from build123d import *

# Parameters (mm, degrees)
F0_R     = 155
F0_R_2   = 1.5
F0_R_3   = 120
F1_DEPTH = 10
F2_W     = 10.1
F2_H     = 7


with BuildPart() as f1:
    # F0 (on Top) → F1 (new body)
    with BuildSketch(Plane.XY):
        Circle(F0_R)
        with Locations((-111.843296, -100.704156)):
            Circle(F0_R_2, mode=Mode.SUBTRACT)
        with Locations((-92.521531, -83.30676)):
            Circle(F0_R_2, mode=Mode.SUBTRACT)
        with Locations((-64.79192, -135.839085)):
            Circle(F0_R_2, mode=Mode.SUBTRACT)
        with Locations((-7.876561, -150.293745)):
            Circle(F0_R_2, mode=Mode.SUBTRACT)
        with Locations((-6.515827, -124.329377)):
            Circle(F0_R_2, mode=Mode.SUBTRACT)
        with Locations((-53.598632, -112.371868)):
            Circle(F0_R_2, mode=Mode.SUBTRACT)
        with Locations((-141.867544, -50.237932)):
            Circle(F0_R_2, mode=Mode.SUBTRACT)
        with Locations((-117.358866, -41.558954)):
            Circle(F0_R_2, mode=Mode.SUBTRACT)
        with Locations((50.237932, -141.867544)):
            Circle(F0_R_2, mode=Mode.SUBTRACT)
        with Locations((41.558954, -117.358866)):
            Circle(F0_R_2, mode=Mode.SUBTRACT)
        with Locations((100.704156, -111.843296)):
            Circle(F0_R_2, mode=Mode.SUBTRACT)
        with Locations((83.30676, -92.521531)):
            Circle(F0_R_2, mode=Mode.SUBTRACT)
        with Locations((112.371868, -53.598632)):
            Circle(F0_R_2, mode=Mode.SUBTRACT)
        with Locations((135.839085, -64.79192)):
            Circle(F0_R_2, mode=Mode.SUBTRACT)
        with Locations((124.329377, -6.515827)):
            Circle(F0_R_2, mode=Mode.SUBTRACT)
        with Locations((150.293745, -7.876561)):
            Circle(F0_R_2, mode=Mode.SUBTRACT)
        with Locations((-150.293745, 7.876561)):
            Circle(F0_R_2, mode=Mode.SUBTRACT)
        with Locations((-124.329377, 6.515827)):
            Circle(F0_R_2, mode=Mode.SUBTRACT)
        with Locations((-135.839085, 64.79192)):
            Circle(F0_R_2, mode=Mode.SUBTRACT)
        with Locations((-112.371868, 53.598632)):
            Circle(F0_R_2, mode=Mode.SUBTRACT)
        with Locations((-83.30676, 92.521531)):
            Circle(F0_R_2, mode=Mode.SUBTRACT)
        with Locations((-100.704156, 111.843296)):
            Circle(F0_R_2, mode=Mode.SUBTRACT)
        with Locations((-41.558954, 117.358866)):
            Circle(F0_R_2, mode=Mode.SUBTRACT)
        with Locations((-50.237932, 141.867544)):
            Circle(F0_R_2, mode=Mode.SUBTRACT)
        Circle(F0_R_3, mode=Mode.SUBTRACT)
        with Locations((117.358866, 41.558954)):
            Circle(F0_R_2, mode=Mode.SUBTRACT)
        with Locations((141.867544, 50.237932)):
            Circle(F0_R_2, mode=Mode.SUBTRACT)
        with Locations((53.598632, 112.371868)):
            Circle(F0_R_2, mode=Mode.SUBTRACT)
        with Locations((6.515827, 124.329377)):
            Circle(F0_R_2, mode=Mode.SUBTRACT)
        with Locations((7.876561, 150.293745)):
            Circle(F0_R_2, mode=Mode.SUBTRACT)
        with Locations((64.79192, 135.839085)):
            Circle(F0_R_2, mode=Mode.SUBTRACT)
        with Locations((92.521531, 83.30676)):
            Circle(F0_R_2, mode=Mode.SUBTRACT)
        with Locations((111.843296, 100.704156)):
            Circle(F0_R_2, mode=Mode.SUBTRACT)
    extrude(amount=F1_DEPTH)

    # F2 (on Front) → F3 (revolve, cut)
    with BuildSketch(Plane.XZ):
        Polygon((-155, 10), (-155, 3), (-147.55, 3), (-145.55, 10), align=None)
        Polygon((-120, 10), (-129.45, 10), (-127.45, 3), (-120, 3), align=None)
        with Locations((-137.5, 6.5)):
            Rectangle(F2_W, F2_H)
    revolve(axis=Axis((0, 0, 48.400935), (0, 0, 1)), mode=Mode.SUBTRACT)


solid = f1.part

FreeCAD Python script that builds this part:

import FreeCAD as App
import Part
import Sketcher
from FreeCAD import Vector


def add_polygon(sketch, points):
    """Adds a closed chain of lines whose ends are joined by coincident constraints."""
    first, n = sketch.GeometryCount, len(points)
    for a, b in zip(points, points[1:] + points[:1]):
        sketch.addGeometry(Part.LineSegment(App.Vector(*a, 0), App.Vector(*b, 0)), False)
    for i in range(n):
        sketch.addConstraint(Sketcher.Constraint("Coincident", first + i, 2, first + (i + 1) % n, 1))

doc = App.newDocument("Part")
body = doc.addObject("PartDesign::Body", "Body")

# Sketch on XY plane
sketch1 = body.newObject("Sketcher::SketchObject", "Sketch")
sketch1.AttachmentSupport = (doc.getObject("XY_Plane"), [""])
sketch1.MapMode = "FlatFace"
sketch1.addGeometry([
    Part.Circle(Vector(0, 0, 0), Vector(0, 0, 1), 155),  # 0
    Part.Circle(Vector(-111.8, -100.7, 0), Vector(0, 0, 1), 1.5),  # 1
    Part.Circle(Vector(-92.5, -83.3, 0), Vector(0, 0, 1), 1.5),  # 2
    Part.Circle(Vector(-64.8, -135.8, 0), Vector(0, 0, 1), 1.5),  # 3
    Part.Circle(Vector(-7.9, -150.3, 0), Vector(0, 0, 1), 1.5),  # 4
    Part.Circle(Vector(-6.5, -124.3, 0), Vector(0, 0, 1), 1.5),  # 5
    Part.Circle(Vector(-53.6, -112.4, 0), Vector(0, 0, 1), 1.5),  # 6
    Part.Circle(Vector(-141.9, -50.2, 0), Vector(0, 0, 1), 1.5),  # 7
    Part.Circle(Vector(-117.4, -41.6, 0), Vector(0, 0, 1), 1.5),  # 8
    Part.Circle(Vector(50.2, -141.9, 0), Vector(0, 0, 1), 1.5),  # 9
    Part.Circle(Vector(41.6, -117.4, 0), Vector(0, 0, 1), 1.5),  # 10
    Part.Circle(Vector(100.7, -111.8, 0), Vector(0, 0, 1), 1.5),  # 11
    Part.Circle(Vector(83.3, -92.5, 0), Vector(0, 0, 1), 1.5),  # 12
    Part.Circle(Vector(112.4, -53.6, 0), Vector(0, 0, 1), 1.5),  # 13
    Part.Circle(Vector(135.8, -64.8, 0), Vector(0, 0, 1), 1.5),  # 14
    Part.Circle(Vector(124.3, -6.5, 0), Vector(0, 0, 1), 1.5),  # 15
    Part.Circle(Vector(150.3, -7.9, 0), Vector(0, 0, 1), 1.5),  # 16
    Part.Circle(Vector(-150.3, 7.9, 0), Vector(0, 0, 1), 1.5),  # 17
    Part.Circle(Vector(-124.3, 6.5, 0), Vector(0, 0, 1), 1.5),  # 18
    Part.Circle(Vector(-135.8, 64.8, 0), Vector(0, 0, 1), 1.5),  # 19
    Part.Circle(Vector(-112.4, 53.6, 0), Vector(0, 0, 1), 1.5),  # 20
    Part.Circle(Vector(-83.3, 92.5, 0), Vector(0, 0, 1), 1.5),  # 21
    Part.Circle(Vector(-100.7, 111.8, 0), Vector(0, 0, 1), 1.5),  # 22
    Part.Circle(Vector(-41.6, 117.4, 0), Vector(0, 0, 1), 1.5),  # 23
    Part.Circle(Vector(-50.2, 141.9, 0), Vector(0, 0, 1), 1.5),  # 24
    Part.Circle(Vector(0, 0, 0), Vector(0, 0, 1), 120),  # 25
    Part.Circle(Vector(117.4, 41.6, 0), Vector(0, 0, 1), 1.5),  # 26
    Part.Circle(Vector(141.9, 50.2, 0), Vector(0, 0, 1), 1.5),  # 27
    Part.Circle(Vector(53.6, 112.4, 0), Vector(0, 0, 1), 1.5),  # 28
    Part.Circle(Vector(6.5, 124.3, 0), Vector(0, 0, 1), 1.5),  # 29
    Part.Circle(Vector(7.9, 150.3, 0), Vector(0, 0, 1), 1.5),  # 30
    Part.Circle(Vector(64.8, 135.8, 0), Vector(0, 0, 1), 1.5),  # 31
    Part.Circle(Vector(92.5, 83.3, 0), Vector(0, 0, 1), 1.5),  # 32
    Part.Circle(Vector(111.8, 100.7, 0), Vector(0, 0, 1), 1.5),  # 33
], False)
sketch1.addConstraint([
    Sketcher.Constraint("Coincident", 0, 3, -1, 1),
    Sketcher.Constraint("Coincident", 25, 3, -1, 1),
    Sketcher.Constraint("Equal", 1, 2),
    Sketcher.Constraint("Equal", 2, 3),
    Sketcher.Constraint("Equal", 3, 4),
    Sketcher.Constraint("Equal", 4, 5),
    Sketcher.Constraint("Equal", 5, 6),
    Sketcher.Constraint("Equal", 6, 7),
    Sketcher.Constraint("Equal", 7, 8),
    Sketcher.Constraint("Equal", 8, 9),
    Sketcher.Constraint("Equal", 9, 10),
    Sketcher.Constraint("Equal", 10, 11),
    Sketcher.Constraint("Equal", 11, 12),
    Sketcher.Constraint("Equal", 12, 13),
    Sketcher.Constraint("Equal", 13, 14),
    Sketcher.Constraint("Equal", 14, 15),
    Sketcher.Constraint("Equal", 15, 16),
    Sketcher.Constraint("Equal", 16, 17),
    Sketcher.Constraint("Equal", 17, 18),
    Sketcher.Constraint("Equal", 18, 19),
    Sketcher.Constraint("Equal", 19, 20),
    Sketcher.Constraint("Equal", 20, 21),
    Sketcher.Constraint("Equal", 21, 22),
    Sketcher.Constraint("Equal", 22, 23),
    Sketcher.Constraint("Equal", 23, 24),
    Sketcher.Constraint("Equal", 24, 26),
    Sketcher.Constraint("Equal", 26, 27),
    Sketcher.Constraint("Equal", 27, 28),
    Sketcher.Constraint("Equal", 28, 29),
    Sketcher.Constraint("Equal", 29, 30),
    Sketcher.Constraint("Equal", 30, 31),
    Sketcher.Constraint("Equal", 31, 32),
    Sketcher.Constraint("Equal", 32, 33),
    Sketcher.Constraint("Symmetric", 16, 3, 17, 3, -1, 1),
    Sketcher.Constraint("Symmetric", 15, 3, 18, 3, -1, 1),
    Sketcher.Constraint("Symmetric", 14, 3, 19, 3, -1, 1),
    Sketcher.Constraint("Symmetric", 13, 3, 20, 3, -1, 1),
    Sketcher.Constraint("Symmetric", 12, 3, 21, 3, -1, 1),
    Sketcher.Constraint("Symmetric", 11, 3, 22, 3, -1, 1),
    Sketcher.Constraint("Symmetric", 10, 3, 23, 3, -1, 1),
    Sketcher.Constraint("Symmetric", 9, 3, 24, 3, -1, 1),
    Sketcher.Constraint("Symmetric", 8, 3, 26, 3, -1, 1),
    Sketcher.Constraint("Symmetric", 7, 3, 27, 3, -1, 1),
    Sketcher.Constraint("Symmetric", 6, 3, 28, 3, -1, 1),
    Sketcher.Constraint("Symmetric", 5, 3, 29, 3, -1, 1),
    Sketcher.Constraint("Symmetric", 4, 3, 30, 3, -1, 1),
    Sketcher.Constraint("Symmetric", 3, 3, 31, 3, -1, 1),
    Sketcher.Constraint("Symmetric", 2, 3, 32, 3, -1, 1),
    Sketcher.Constraint("Symmetric", 1, 3, 33, 3, -1, 1),
    Sketcher.Constraint("Diameter", 0, 310.0),
    Sketcher.Constraint("Diameter", 1, 3.0),
    Sketcher.Constraint("Diameter", 25, 240.0),
    Sketcher.Constraint("DistanceX", 2, 3, 6, 3, 38.922899),
    Sketcher.Constraint("DistanceY", 1, 3, 8, 3, 59.145202),
    Sketcher.Constraint("DistanceY", 4, 3, 9, 3, 8.426201),
    Sketcher.Constraint("DistanceX", 10, 3, 11, 3, 59.145202),
    Sketcher.Constraint("DistanceY", 12, 3, 13, 3, 38.922899),
    Sketcher.Constraint("DistanceX", 17, 3, 7, 3, 8.426201),
    Sketcher.Constraint("DistanceX", 2, 3, -1, 1, 92.521531),
    Sketcher.Constraint("DistanceY", 2, 3, -1, 1, 83.30676),
    Sketcher.Constraint("DistanceX", 3, 3, -1, 1, 64.79192),
    Sketcher.Constraint("DistanceX", 4, 3, -1, 1, 7.876561),
    Sketcher.Constraint("DistanceY", 6, 3, -1, 1, 112.371868),
    Sketcher.Constraint("DistanceX", -1, 1, 12, 3, 83.30676),
    Sketcher.Constraint("DistanceY", 12, 3, -1, 1, 92.521531),
    Sketcher.Constraint("DistanceX", -1, 1, 13, 3, 112.371868),
    Sketcher.Constraint("DistanceY", 14, 3, -1, 1, 64.79192),
    Sketcher.Constraint("DistanceY", 16, 3, -1, 1, 7.876561),
    Sketcher.Constraint("DistanceY", 3, 3, 1, 3, 35.134929),
    Sketcher.Constraint("DistanceY", 4, 3, 3, 3, 14.45466),
    Sketcher.Constraint("DistanceY", 4, 3, 5, 3, 25.964368),
    Sketcher.Constraint("DistanceX", 1, 3, 5, 3, 105.327469),
    Sketcher.Constraint("DistanceY", 5, 3, 6, 3, 11.957509),
    Sketcher.Constraint("DistanceX", 7, 3, 1, 3, 30.024248),
    Sketcher.Constraint("DistanceX", 7, 3, 6, 3, 88.268912),
    Sketcher.Constraint("DistanceX", 7, 3, 8, 3, 24.508678),
    Sketcher.Constraint("DistanceY", 7, 3, 8, 3, 8.678978),
    Sketcher.Constraint("DistanceX", 5, 3, 9, 3, 56.753759),
    Sketcher.Constraint("DistanceX", 10, 3, 9, 3, 8.678978),
    Sketcher.Constraint("DistanceY", 9, 3, 10, 3, 24.508678),
    Sketcher.Constraint("DistanceY", 9, 3, 11, 3, 30.024248),
    Sketcher.Constraint("DistanceX", 11, 3, 14, 3, 35.134929),
    Sketcher.Constraint("DistanceX", 13, 3, 15, 3, 11.957509),
    Sketcher.Constraint("DistanceY", 11, 3, 15, 3, 105.327469),
])
pad1 = body.newObject("PartDesign::Pad", "Pad")
pad1.Profile = sketch1
pad1.Length = 10

# Sketch on XZ plane
sketch2 = body.newObject("Sketcher::SketchObject", "Sketch001")
sketch2.AttachmentSupport = (doc.getObject("XZ_Plane"), [""])
sketch2.MapMode = "FlatFace"
add_polygon(sketch2, [(-155, 10), (-155, 3), (-148, 3), (-146, 10)])  # lines 0-3
add_polygon(sketch2, [(-120, 10), (-129, 10), (-127, 3), (-120, 3)])  # lines 4-7
add_polygon(sketch2, [(-143, 10), (-143, 3), (-132, 3), (-132, 10)])  # lines 8-11
sketch2.addConstraint([
    Sketcher.Constraint("Vertical", 0),
    Sketcher.Constraint("Horizontal", 1),
    Sketcher.Constraint("Horizontal", 3),
    Sketcher.Constraint("Horizontal", 4),
    Sketcher.Constraint("Horizontal", 6),
    Sketcher.Constraint("Vertical", 7),
    Sketcher.Constraint("Vertical", 8),
    Sketcher.Constraint("Horizontal", 9),
    Sketcher.Constraint("Vertical", 10),
    Sketcher.Constraint("Horizontal", 11),
    Sketcher.Constraint("Horizontal", 3, 2, 4, 2),
    Sketcher.Constraint("Horizontal", 1, 2, 5, 2),
    Sketcher.Constraint("Horizontal", 6, 2, 8, 2),
    Sketcher.Constraint("Horizontal", 7, 2, 10, 2),
    Sketcher.Constraint("Equal", 3, 4),
    Sketcher.Constraint("Equal", 1, 6),
    Sketcher.Constraint("DistanceY", 0, 2, 0, 1, 7.0),
    Sketcher.Constraint("DistanceX", 9, 1, 9, 2, 10.1),
    Sketcher.Constraint("DistanceX", 0, 2, -1, 1, 155.0),
    Sketcher.Constraint("DistanceY", -1, 1, 0, 2, 3.0),
    Sketcher.Constraint("DistanceX", 6, 2, -1, 1, 120.0),
    Sketcher.Constraint("DistanceX", 1, 2, 2, 2, 2.0),
    Sketcher.Constraint("DistanceX", 1, 2, 8, 2, 5.0),
    Sketcher.Constraint("DistanceX", 9, 2, 5, 2, 5.0),
])
groove = body.newObject("PartDesign::Groove", "Groove")
groove.Profile = sketch2
groove.ReferenceAxis = (sketch2, ["V_Axis"])
groove.Angle = 360

doc.recompute()
